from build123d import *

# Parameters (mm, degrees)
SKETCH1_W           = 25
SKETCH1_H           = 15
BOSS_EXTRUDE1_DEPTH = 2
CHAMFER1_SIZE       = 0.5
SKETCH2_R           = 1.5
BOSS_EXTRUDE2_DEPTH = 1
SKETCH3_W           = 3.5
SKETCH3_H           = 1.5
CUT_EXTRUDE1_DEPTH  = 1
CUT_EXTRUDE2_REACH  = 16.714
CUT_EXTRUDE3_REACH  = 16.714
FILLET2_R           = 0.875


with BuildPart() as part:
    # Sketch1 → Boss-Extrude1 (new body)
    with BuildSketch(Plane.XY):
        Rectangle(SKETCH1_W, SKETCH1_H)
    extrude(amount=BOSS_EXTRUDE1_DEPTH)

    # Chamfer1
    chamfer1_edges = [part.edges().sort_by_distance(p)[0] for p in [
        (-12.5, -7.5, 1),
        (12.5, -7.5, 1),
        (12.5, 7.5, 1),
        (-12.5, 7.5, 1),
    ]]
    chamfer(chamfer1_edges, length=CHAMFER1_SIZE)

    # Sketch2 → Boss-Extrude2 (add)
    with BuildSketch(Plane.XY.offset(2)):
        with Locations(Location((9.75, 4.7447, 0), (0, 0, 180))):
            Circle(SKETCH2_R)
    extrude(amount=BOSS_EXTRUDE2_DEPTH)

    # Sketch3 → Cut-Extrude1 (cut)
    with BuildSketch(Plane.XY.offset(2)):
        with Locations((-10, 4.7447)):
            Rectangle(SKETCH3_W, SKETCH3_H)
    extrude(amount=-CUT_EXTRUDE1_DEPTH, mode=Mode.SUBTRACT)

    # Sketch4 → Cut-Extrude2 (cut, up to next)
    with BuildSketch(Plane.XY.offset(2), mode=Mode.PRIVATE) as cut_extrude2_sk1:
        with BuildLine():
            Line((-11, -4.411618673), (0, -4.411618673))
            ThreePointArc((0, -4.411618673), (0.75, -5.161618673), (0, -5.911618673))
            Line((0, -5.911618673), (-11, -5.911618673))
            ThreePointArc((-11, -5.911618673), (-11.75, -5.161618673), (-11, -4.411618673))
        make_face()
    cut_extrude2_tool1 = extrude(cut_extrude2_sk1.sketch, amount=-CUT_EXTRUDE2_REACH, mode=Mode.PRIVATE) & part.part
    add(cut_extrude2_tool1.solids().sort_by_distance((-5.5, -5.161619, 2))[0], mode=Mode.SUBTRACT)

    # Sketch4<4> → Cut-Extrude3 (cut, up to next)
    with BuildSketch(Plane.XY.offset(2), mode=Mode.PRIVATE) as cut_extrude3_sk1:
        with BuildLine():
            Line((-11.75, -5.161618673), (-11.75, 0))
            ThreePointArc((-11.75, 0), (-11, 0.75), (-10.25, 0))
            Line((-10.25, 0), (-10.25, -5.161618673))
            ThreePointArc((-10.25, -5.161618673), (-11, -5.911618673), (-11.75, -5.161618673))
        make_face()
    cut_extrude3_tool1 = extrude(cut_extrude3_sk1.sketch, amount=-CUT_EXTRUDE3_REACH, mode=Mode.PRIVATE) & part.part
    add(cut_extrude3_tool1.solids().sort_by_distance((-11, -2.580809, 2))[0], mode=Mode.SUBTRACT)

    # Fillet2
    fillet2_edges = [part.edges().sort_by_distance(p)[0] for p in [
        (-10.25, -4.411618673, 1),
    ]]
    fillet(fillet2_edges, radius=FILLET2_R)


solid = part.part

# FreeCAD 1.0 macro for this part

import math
import FreeCAD as App
import Part
import Sketcher

V = App.Vector
Q = App.Units.Quantity


def edges_at(feature, points):
    """Names of the edges that pass closest to the given points."""
    edges = feature.Shape.Edges
    near = lambda p: min(range(len(edges)), key=lambda i: edges[i].distToShape(Part.Vertex(*p))[0])
    return sorted({f"Edge{near(p) + 1}" for p in points})


def add_polygon(sketch, points):
    """Adds a closed chain of lines whose ends are joined by coincident constraints."""
    first, n = sketch.GeometryCount, len(points)
    for a, b in zip(points, points[1:] + points[:1]):
        sketch.addGeometry(Part.LineSegment(App.Vector(*a, 0), App.Vector(*b, 0)), False)
    for i in range(n):
        sketch.addConstraint(Sketcher.Constraint("Coincident", first + i, 2, first + (i + 1) % n, 1))

doc = App.newDocument("Part")
body = doc.addObject("PartDesign::Body", "Body")

sketch1 = body.newObject("Sketcher::SketchObject", "Sketch")
sketch1.AttachmentSupport = (doc.getObject("XY_Plane"), [""])
sketch1.MapMode = "FlatFace"
add_polygon(sketch1, [(-12.5, 7.5), (-12.5, -7.5), (12.5, -7.5), (12.5, 7.5)])
sketch1.addConstraint([
    Sketcher.Constraint("Vertical", 0),
    Sketcher.Constraint("Horizontal", 1),
    Sketcher.Constraint("Vertical", 2),
    Sketcher.Constraint("Horizontal", 3),
    Sketcher.Constraint("Symmetric", 0, 2, 2, 2, -1, 1),
    Sketcher.Constraint("DistanceX", 1, 1, 1, 2, Q("25 mm")),
    Sketcher.Constraint("DistanceY", 0, 2, 0, 1, Q("15 mm")),
])
pad1 = body.newObject("PartDesign::Pad", "Pad")
pad1.Profile = sketch1
pad1.Length = 2
doc.recompute()

chamfer = body.newObject("PartDesign::Chamfer", "Chamfer")
chamfer.Base = (pad1, edges_at(pad1, [
    (-12.5, -7.5, 1),
    (12.5, -7.5, 1),
    (12.5, 7.5, 1),
    (-12.5, 7.5, 1),
]))
chamfer.Size = 0.5

sketch2 = body.newObject("Sketcher::SketchObject", "Sketch001")
sketch2.AttachmentSupport = (doc.getObject("XY_Plane"), [""])
sketch2.MapMode = "FlatFace"
sketch2.AttachmentOffset = App.Placement(V(0, 0, 2), App.Rotation())
sketch2.addGeometry(Part.Circle(V(9.75, 4.7447, 0), V(0, 0, 1), 1.5), False)
sketch2.addConstraint([
    Sketcher.Constraint("Diameter", 0, Q("3 mm")),
    Sketcher.Constraint("DistanceX", -1, 1, 0, 3, Q("9.75 mm")),
    Sketcher.Constraint("DistanceY", -1, 1, 0, 3, Q("4.7447 mm")),
])
pad2 = body.newObject("PartDesign::Pad", "Pad001")
pad2.Profile = sketch2
pad2.Length = 1

sketch3 = body.newObject("Sketcher::SketchObject", "Sketch002")
sketch3.AttachmentSupport = (doc.getObject("XY_Plane"), [""])
sketch3.MapMode = "FlatFace"
sketch3.AttachmentOffset = App.Placement(V(0, 0, 2), App.Rotation())
add_polygon(sketch3, [(-11.75, 5.4947), (-11.75, 3.9947), (-8.25, 3.9947), (-8.25, 5.4947)])
sketch3.addConstraint([
    Sketcher.Constraint("Vertical", 0),
    Sketcher.Constraint("Horizontal", 1),
    Sketcher.Constraint("Vertical", 2),
    Sketcher.Constraint("Horizontal", 3),
    Sketcher.Constraint("DistanceX", 1, 1, 1, 2, Q("3.5 mm")),
    Sketcher.Constraint("DistanceY", 0, 2, 0, 1, Q("1.5 mm")),
    Sketcher.Constraint("DistanceX", 0, 2, -1, 1, Q("11.75 mm")),
    Sketcher.Constraint("DistanceY", -1, 1, 0, 2, Q("3.9947 mm")),
])
pocket1 = body.newObject("PartDesign::Pocket", "Pocket")
pocket1.Profile = sketch3
pocket1.Length = 1

sketch4 = body.newObject("Sketcher::SketchObject", "Sketch003")
sketch4.AttachmentSupport = (doc.getObject("XY_Plane"), [""])
sketch4.MapMode = "FlatFace"
sketch4.AttachmentOffset = App.Placement(V(0, 0, 2), App.Rotation())
sketch4.addGeometry([
    Part.LineSegment(V(0, -4.411619, 0), V(-11, -4.411619, 0)),
    Part.ArcOfCircle(Part.Circle(V(-11, -5.161619, 0), V(0, 0, 1), 0.75), math.radians(90), math.radians(270)),
    Part.LineSegment(V(-11, -5.911619, 0), V(0, -5.911619, 0)),
    Part.ArcOfCircle(Part.Circle(V(0, -5.161619, 0), V(0, 0, 1), 0.75), math.radians(-90), math.radians(90)),
], False)
sketch4.addConstraint([
    Sketcher.Constraint("Tangent", 0, 2, 1, 1),
    Sketcher.Constraint("Tangent", 1, 2, 2, 1),
    Sketcher.Constraint("Tangent", 2, 2, 3, 1),
    Sketcher.Constraint("Tangent", 3, 2, 0, 1),
    Sketcher.Constraint("Horizontal", 0),
    Sketcher.Constraint("Horizontal", 2),
    Sketcher.Constraint("PointOnObject", 3, 3, -2),
    Sketcher.Constraint("DistanceX", 0, 2, 0, 1, Q("11 mm")),
    Sketcher.Constraint("Radius", 1, Q("0.75 mm")),
    Sketcher.Constraint("DistanceY", 1, 3, -1, 1, Q("5.161619 mm")),
])
pocket2 = body.newObject("PartDesign::Pocket", "Pocket001")
pocket2.Profile = sketch4
pocket2.Type = "UpToFirst"

sketch5 = body.newObject("Sketcher::SketchObject", "Sketch004")
sketch5.AttachmentSupport = (doc.getObject("XY_Plane"), [""])
sketch5.MapMode = "FlatFace"
sketch5.AttachmentOffset = App.Placement(V(0, 0, 2), App.Rotation())
sketch5.addGeometry([
    Part.LineSegment(V(-11.75, 0, 0), V(-11.75, -5.161619, 0)),
    Part.ArcOfCircle(Part.Circle(V(-11, -5.161619, 0), V(0, 0, 1), 0.75), math.radians(180), math.radians(360)),
    Part.LineSegment(V(-10.25, -5.161619, 0), V(-10.25, 0, 0)),
    Part.ArcOfCircle(Part.Circle(V(-11, 0, 0), V(0, 0, 1), 0.75), math.radians(0), math.radians(180)),
], False)
sketch5.addConstraint([
    Sketcher.Constraint("Tangent", 0, 2, 1, 1),
    Sketcher.Constraint("Tangent", 1, 2, 2, 1),
    Sketcher.Constraint("Tangent", 2, 2, 3, 1),
    Sketcher.Constraint("Tangent", 3, 2, 0, 1),
    Sketcher.Constraint("Vertical", 0),
    Sketcher.Constraint("Vertical", 2),
    Sketcher.Constraint("PointOnObject", 3, 3, -1),
    Sketcher.Constraint("Radius", 1, Q("0.75 mm")),
    Sketcher.Constraint("DistanceX", 1, 3, -1, 1, Q("11 mm")),
    Sketcher.Constraint("DistanceY", 0, 2, 0, 1, Q("5.161619 mm")),
])
pocket3 = body.newObject("PartDesign::Pocket", "Pocket002")
pocket3.Profile = sketch5
pocket3.Type = "UpToFirst"
doc.recompute()

fillet = body.newObject("PartDesign::Fillet", "Fillet")
fillet.Base = (pocket3, edges_at(pocket3, [(-10.25, -4.412, 1)]))
fillet.Radius = 0.875

doc.recompute()
